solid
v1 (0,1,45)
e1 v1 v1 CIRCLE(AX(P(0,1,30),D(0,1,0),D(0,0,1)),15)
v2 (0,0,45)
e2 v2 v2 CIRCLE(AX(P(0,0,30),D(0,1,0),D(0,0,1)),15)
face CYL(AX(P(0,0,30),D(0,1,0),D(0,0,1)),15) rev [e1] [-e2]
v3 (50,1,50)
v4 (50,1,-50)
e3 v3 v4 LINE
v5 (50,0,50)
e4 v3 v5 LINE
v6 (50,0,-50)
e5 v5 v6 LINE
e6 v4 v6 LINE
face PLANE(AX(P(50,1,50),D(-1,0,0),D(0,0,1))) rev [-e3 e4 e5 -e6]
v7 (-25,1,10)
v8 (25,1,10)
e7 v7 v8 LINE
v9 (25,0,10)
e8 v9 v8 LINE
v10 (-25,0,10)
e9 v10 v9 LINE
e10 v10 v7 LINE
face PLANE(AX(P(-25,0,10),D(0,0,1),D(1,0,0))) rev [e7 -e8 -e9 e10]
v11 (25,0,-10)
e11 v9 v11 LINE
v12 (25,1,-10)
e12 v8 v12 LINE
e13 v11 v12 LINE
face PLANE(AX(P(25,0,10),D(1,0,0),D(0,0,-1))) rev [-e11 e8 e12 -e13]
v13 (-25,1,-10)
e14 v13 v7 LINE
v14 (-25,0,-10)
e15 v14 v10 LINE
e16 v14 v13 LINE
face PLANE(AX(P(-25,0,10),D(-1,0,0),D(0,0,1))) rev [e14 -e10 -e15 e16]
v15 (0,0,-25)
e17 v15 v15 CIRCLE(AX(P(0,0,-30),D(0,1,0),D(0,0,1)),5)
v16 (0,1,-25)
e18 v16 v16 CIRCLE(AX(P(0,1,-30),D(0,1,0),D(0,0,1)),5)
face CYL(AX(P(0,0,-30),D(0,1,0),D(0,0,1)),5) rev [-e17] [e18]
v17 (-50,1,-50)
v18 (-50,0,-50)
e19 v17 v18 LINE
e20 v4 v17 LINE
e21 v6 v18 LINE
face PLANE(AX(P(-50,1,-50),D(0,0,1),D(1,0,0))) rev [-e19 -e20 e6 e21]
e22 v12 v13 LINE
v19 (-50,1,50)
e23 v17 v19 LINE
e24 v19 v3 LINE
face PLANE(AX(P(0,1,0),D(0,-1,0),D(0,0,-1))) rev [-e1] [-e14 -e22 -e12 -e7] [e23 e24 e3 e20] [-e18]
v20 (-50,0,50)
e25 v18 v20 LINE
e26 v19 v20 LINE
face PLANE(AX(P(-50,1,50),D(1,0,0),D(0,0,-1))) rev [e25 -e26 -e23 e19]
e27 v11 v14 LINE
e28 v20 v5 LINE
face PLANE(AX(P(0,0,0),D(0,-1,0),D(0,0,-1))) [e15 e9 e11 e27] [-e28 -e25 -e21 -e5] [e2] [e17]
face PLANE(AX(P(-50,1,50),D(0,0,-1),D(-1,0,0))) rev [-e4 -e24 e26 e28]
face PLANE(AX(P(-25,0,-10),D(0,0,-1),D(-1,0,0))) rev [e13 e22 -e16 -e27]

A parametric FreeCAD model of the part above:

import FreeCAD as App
import Part
import Sketcher
from FreeCAD import Vector
Q = App.Units.Quantity

doc = App.newDocument("Part")
params = doc.addObject("Spreadsheet::Sheet", "Params")
for row, (alias, value) in enumerate([
    ("sketch1_width", "100 mm"),
    ("pad1_length", "1 mm"),
    ("sketch2_width", "50 mm"),
    ("sketch2_height", "20 mm"),
    ("pocket1_length", "1 mm"),
    ("sketch3_diameter", "10 mm"),
    ("sketch3_diameter2", "30 mm"),
    ("pocket2_length", "1 mm"),
], start=1):
    params.set(f"A{row}", alias)
    params.set(f"B{row}", "=" + value)
    params.setAlias(f"B{row}", alias)

body = doc.addObject("PartDesign::Body", "Body")

# Sketch on XZ plane
sketch1 = body.newObject("Sketcher::SketchObject", "Sketch")
sketch1.AttachmentSupport = (doc.getObject("XZ_Plane"), [""])
sketch1.MapMode = "FlatFace"
sketch1.addGeometry(Part.LineSegment(Vector(-50, -50, 0), Vector(-50, 50, 0)), False)
sketch1.addGeometry(Part.LineSegment(Vector(-50, 50, 0), Vector(50, 50, 0)), False)
sketch1.addGeometry(Part.LineSegment(Vector(50, 50, 0), Vector(50, -50, 0)), False)
sketch1.addGeometry(Part.LineSegment(Vector(50, -50, 0), Vector(-50, -50, 0)), False)
sketch1.addConstraint(Sketcher.Constraint("Coincident", 0, 2, 1, 1))
sketch1.addConstraint(Sketcher.Constraint("Coincident", 1, 2, 2, 1))
sketch1.addConstraint(Sketcher.Constraint("Coincident", 2, 2, 3, 1))
sketch1.addConstraint(Sketcher.Constraint("Coincident", 3, 2, 0, 1))
sketch1.addConstraint(Sketcher.Constraint("Vertical", 0))
sketch1.addConstraint(Sketcher.Constraint("Horizontal", 1))
sketch1.addConstraint(Sketcher.Constraint("Vertical", 2))
sketch1.addConstraint(Sketcher.Constraint("Horizontal", 3))
sketch1.addConstraint(Sketcher.Constraint("Symmetric", 0, 2, 2, 2, -1, 1))
sketch1.addConstraint(Sketcher.Constraint("Equal", 3, 0))
sketch1.addConstraint(Sketcher.Constraint("DistanceX", 1, 1, 1, 2, Q("100 mm")))
sketch1.setExpression("Constraints[10]", "Params.sketch1_width")
pad1 = body.newObject("PartDesign::Pad", "Pad")
pad1.Profile = sketch1
pad1.setExpression("Length", "Params.pad1_length")
pad1.Reversed = True

# Sketch on XZ plane
sketch2 = body.newObject("Sketcher::SketchObject", "Sketch001")
sketch2.AttachmentSupport = (doc.getObject("XZ_Plane"), [""])
sketch2.MapMode = "FlatFace"
sketch2.AttachmentOffset = App.Placement(Vector(0, 0, -1), App.Rotation())
sketch2.addGeometry(Part.LineSegment(Vector(-25, -10, 0), Vector(-25, 10, 0)), False)
sketch2.addGeometry(Part.LineSegment(Vector(-25, 10, 0), Vector(25, 10, 0)), False)
sketch2.addGeometry(Part.LineSegment(Vector(25, 10, 0), Vector(25, -10, 0)), False)
sketch2.addGeometry(Part.LineSegment(Vector(25, -10, 0), Vector(-25, -10, 0)), False)
sketch2.addConstraint(Sketcher.Constraint("Coincident", 0, 2, 1, 1))
sketch2.addConstraint(Sketcher.Constraint("Coincident", 1, 2, 2, 1))
sketch2.addConstraint(Sketcher.Constraint("Coincident", 2, 2, 3, 1))
sketch2.addConstraint(Sketcher.Constraint("Coincident", 3, 2, 0, 1))
sketch2.addConstraint(Sketcher.Constraint("Vertical", 0))
sketch2.addConstraint(Sketcher.Constraint("Horizontal", 1))
sketch2.addConstraint(Sketcher.Constraint("Vertical", 2))
sketch2.addConstraint(Sketcher.Constraint("Horizontal", 3))
sketch2.addConstraint(Sketcher.Constraint("Symmetric", 0, 2, 2, 2, -1, 1))
sketch2.addConstraint(Sketcher.Constraint("DistanceX", 1, 1, 1, 2, Q("50 mm")))
sketch2.addConstraint(Sketcher.Constraint("DistanceY", 0, 1, 0, 2, Q("20 mm")))
sketch2.setExpression("Constraints[9]", "Params.sketch2_width")
sketch2.setExpression("Constraints[10]", "Params.sketch2_height")
pocket1 = body.newObject("PartDesign::Pocket", "Pocket")
pocket1.Profile = sketch2
pocket1.setExpression("Length", "Params.pocket1_length")
pocket1.Reversed = True

# Sketch on XZ plane
sketch3 = body.newObject("Sketcher::SketchObject", "Sketch002")
sketch3.AttachmentSupport = (doc.getObject("XZ_Plane"), [""])
sketch3.MapMode = "FlatFace"
sketch3.AttachmentOffset = App.Placement(Vector(0, 0, -1), App.Rotation())
sketch3.addGeometry(Part.Circle(Vector(0, -30, 0), Vector(0, 0, 1), 5), False)
sketch3.addGeometry(Part.Circle(Vector(0, 30, 0), Vector(0, 0, 1), 15), False)
sketch3.addConstraint(Sketcher.Constraint("Symmetric", 0, 3, 1, 3, -1, 1))
sketch3.addConstraint(Sketcher.Constraint("PointOnObject", 0, 3, -2))
sketch3.addConstraint(Sketcher.Constraint("Diameter", 0, Q("10 mm")))
sketch3.addConstraint(Sketcher.Constraint("Diameter", 1, Q("30 mm")))
sketch3.addConstraint(Sketcher.Constraint("DistanceY", 0, 3, -1, 1, Q("30 mm")))
sketch3.setExpression("Constraints[2]", "Params.sketch3_diameter")
sketch3.setExpression("Constraints[3]", "Params.sketch3_diameter2")
pocket2 = body.newObject("PartDesign::Pocket", "Pocket001")
pocket2.Profile = sketch3
pocket2.setExpression("Length", "Params.pocket2_length")
pocket2.Reversed = True

doc.recompute()
